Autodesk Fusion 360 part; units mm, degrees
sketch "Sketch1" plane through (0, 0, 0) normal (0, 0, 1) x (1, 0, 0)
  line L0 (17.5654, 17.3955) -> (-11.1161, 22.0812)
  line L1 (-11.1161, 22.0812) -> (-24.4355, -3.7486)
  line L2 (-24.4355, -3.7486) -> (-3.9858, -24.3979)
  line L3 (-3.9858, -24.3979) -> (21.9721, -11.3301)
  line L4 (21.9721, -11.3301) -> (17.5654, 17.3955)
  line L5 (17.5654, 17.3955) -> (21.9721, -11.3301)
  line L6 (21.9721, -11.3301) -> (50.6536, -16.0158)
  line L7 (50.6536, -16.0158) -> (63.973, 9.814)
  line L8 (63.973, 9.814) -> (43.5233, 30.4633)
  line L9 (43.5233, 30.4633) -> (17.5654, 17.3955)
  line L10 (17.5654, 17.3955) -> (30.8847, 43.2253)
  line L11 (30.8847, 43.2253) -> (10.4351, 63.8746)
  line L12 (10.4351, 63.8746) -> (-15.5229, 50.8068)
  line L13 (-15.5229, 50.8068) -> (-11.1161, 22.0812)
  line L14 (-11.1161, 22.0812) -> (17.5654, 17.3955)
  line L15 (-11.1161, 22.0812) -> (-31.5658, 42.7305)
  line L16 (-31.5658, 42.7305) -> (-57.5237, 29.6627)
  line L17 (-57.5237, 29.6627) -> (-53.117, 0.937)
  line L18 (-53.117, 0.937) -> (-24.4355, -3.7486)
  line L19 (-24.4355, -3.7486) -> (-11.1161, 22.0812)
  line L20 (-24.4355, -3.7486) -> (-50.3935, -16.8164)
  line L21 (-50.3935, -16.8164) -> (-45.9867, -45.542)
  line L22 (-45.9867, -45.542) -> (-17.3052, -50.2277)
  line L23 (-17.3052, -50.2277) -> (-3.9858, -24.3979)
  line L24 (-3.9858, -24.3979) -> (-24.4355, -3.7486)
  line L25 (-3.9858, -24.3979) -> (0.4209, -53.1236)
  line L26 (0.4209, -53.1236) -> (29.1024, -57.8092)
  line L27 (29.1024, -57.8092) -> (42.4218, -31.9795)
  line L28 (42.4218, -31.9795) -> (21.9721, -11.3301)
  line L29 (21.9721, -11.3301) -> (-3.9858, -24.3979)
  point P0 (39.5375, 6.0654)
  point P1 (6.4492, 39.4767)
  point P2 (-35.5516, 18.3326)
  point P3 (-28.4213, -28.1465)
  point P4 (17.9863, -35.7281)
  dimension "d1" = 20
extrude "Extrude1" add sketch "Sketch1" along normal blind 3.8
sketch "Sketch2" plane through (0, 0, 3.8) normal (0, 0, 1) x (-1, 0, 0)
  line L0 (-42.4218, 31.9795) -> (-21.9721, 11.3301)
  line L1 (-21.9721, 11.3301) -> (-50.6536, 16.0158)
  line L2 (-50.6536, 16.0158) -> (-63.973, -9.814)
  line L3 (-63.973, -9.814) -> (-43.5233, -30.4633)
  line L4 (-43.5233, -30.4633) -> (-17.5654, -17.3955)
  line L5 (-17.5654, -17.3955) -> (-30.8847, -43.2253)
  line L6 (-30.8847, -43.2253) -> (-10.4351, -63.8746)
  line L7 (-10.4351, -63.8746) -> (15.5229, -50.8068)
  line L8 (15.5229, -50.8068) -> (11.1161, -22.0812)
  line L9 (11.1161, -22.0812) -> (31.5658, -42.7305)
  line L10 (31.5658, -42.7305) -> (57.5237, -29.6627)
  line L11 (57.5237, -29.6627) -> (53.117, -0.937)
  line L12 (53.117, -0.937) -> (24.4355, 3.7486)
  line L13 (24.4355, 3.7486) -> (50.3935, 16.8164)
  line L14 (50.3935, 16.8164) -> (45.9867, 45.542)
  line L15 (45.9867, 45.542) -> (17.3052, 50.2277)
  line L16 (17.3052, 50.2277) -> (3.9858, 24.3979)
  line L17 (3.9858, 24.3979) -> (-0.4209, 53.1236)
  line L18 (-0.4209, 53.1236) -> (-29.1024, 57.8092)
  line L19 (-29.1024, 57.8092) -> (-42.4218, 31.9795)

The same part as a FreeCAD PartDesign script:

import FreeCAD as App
import Part
import Sketcher

V = App.Vector
Q = App.Units.Quantity


def add_polygon(sketch, points):
    """Adds a closed chain of lines whose ends are joined by coincident constraints."""
    first, n = sketch.GeometryCount, len(points)
    for a, b in zip(points, points[1:] + points[:1]):
        sketch.addGeometry(Part.LineSegment(App.Vector(*a, 0), App.Vector(*b, 0)), False)
    for i in range(n):
        sketch.addConstraint(Sketcher.Constraint("Coincident", first + i, 2, first + (i + 1) % n, 1))

doc = App.newDocument("Part")
body = doc.addObject("PartDesign::Body", "Body")

# Sketch on XY plane
sketch1 = body.newObject("Sketcher::SketchObject", "Sketch")
sketch1.AttachmentSupport = (doc.getObject("XY_Plane"), [""])
sketch1.MapMode = "FlatFace"
add_polygon(sketch1, [(44, 30), (18, 17), (31, 43), (10, 64), (-16, 51), (-11, 22), (-32, 43), (-58, 30), (-53, 1), (-24, -4), (-50, -17), (-46, -46), (-17, -50), (-4, -24), (0, -53), (29, -58), (42, -32), (22, -11), (51, -16), (64, 10)])  # lines 0-19
sketch1.addConstraint(Sketcher.Constraint("Parallel", 0, 3))
sketch1.addConstraint(Sketcher.Constraint("Parallel", 2, 5))
sketch1.addConstraint(Sketcher.Constraint("Parallel", 3, 6))
sketch1.addConstraint(Sketcher.Constraint("Parallel", 4, 7))
sketch1.addConstraint(Sketcher.Constraint("Parallel", 6, 9))
sketch1.addConstraint(Sketcher.Constraint("Parallel", 7, 10))
sketch1.addConstraint(Sketcher.Constraint("Parallel", 8, 11))
sketch1.addConstraint(Sketcher.Constraint("Parallel", 1, 12))
sketch1.addConstraint(Sketcher.Constraint("Parallel", 10, 13))
sketch1.addConstraint(Sketcher.Constraint("Parallel", 11, 14))
sketch1.addConstraint(Sketcher.Constraint("Parallel", 12, 15))
sketch1.addConstraint(Sketcher.Constraint("Parallel", 5, 16))
sketch1.addConstraint(Sketcher.Constraint("Parallel", 14, 17))
sketch1.addConstraint(Sketcher.Constraint("Parallel", 15, 18))
sketch1.addConstraint(Sketcher.Constraint("Parallel", 16, 19))
sketch1.addConstraint(Sketcher.Constraint("Equal", 0, 1))
sketch1.addConstraint(Sketcher.Constraint("Equal", 1, 2))
sketch1.addConstraint(Sketcher.Constraint("Equal", 2, 3))
sketch1.addConstraint(Sketcher.Constraint("Equal", 3, 4))
sketch1.addConstraint(Sketcher.Constraint("Equal", 4, 5))
sketch1.addConstraint(Sketcher.Constraint("Equal", 5, 6))
sketch1.addConstraint(Sketcher.Constraint("Equal", 6, 7))
sketch1.addConstraint(Sketcher.Constraint("Equal", 7, 8))
sketch1.addConstraint(Sketcher.Constraint("Equal", 8, 9))
sketch1.addConstraint(Sketcher.Constraint("Equal", 9, 10))
sketch1.addConstraint(Sketcher.Constraint("Equal", 10, 11))
sketch1.addConstraint(Sketcher.Constraint("Equal", 11, 12))
sketch1.addConstraint(Sketcher.Constraint("Equal", 12, 13))
sketch1.addConstraint(Sketcher.Constraint("Equal", 13, 14))
sketch1.addConstraint(Sketcher.Constraint("Equal", 14, 15))
sketch1.addConstraint(Sketcher.Constraint("Equal", 15, 16))
sketch1.addConstraint(Sketcher.Constraint("Equal", 16, 17))
sketch1.addConstraint(Sketcher.Constraint("Equal", 17, 18))
sketch1.addConstraint(Sketcher.Constraint("Equal", 18, 19))
sketch1.addConstraint(Sketcher.Constraint("DistanceY", 16, 2, -1, 1, Q("11.33 mm")))
sketch1.addConstraint(Sketcher.Constraint("DistanceX", -1, 1, 2, 2, Q("10.435 mm")))
sketch1.addConstraint(Sketcher.Constraint("DistanceX", 3, 2, -1, 1, Q("15.523 mm")))
sketch1.addConstraint(Sketcher.Constraint("DistanceX", 4, 2, -1, 1, Q("11.116 mm")))
sketch1.addConstraint(Sketcher.Constraint("DistanceX", 7, 2, -1, 1, Q("53.117 mm")))
sketch1.addConstraint(Sketcher.Constraint("DistanceY", -1, 1, 7, 2, Q("0.937 mm")))
pad1 = body.newObject("PartDesign::Pad", "Pad")
pad1.Profile = sketch1
pad1.Length = 3.8

doc.recompute()
